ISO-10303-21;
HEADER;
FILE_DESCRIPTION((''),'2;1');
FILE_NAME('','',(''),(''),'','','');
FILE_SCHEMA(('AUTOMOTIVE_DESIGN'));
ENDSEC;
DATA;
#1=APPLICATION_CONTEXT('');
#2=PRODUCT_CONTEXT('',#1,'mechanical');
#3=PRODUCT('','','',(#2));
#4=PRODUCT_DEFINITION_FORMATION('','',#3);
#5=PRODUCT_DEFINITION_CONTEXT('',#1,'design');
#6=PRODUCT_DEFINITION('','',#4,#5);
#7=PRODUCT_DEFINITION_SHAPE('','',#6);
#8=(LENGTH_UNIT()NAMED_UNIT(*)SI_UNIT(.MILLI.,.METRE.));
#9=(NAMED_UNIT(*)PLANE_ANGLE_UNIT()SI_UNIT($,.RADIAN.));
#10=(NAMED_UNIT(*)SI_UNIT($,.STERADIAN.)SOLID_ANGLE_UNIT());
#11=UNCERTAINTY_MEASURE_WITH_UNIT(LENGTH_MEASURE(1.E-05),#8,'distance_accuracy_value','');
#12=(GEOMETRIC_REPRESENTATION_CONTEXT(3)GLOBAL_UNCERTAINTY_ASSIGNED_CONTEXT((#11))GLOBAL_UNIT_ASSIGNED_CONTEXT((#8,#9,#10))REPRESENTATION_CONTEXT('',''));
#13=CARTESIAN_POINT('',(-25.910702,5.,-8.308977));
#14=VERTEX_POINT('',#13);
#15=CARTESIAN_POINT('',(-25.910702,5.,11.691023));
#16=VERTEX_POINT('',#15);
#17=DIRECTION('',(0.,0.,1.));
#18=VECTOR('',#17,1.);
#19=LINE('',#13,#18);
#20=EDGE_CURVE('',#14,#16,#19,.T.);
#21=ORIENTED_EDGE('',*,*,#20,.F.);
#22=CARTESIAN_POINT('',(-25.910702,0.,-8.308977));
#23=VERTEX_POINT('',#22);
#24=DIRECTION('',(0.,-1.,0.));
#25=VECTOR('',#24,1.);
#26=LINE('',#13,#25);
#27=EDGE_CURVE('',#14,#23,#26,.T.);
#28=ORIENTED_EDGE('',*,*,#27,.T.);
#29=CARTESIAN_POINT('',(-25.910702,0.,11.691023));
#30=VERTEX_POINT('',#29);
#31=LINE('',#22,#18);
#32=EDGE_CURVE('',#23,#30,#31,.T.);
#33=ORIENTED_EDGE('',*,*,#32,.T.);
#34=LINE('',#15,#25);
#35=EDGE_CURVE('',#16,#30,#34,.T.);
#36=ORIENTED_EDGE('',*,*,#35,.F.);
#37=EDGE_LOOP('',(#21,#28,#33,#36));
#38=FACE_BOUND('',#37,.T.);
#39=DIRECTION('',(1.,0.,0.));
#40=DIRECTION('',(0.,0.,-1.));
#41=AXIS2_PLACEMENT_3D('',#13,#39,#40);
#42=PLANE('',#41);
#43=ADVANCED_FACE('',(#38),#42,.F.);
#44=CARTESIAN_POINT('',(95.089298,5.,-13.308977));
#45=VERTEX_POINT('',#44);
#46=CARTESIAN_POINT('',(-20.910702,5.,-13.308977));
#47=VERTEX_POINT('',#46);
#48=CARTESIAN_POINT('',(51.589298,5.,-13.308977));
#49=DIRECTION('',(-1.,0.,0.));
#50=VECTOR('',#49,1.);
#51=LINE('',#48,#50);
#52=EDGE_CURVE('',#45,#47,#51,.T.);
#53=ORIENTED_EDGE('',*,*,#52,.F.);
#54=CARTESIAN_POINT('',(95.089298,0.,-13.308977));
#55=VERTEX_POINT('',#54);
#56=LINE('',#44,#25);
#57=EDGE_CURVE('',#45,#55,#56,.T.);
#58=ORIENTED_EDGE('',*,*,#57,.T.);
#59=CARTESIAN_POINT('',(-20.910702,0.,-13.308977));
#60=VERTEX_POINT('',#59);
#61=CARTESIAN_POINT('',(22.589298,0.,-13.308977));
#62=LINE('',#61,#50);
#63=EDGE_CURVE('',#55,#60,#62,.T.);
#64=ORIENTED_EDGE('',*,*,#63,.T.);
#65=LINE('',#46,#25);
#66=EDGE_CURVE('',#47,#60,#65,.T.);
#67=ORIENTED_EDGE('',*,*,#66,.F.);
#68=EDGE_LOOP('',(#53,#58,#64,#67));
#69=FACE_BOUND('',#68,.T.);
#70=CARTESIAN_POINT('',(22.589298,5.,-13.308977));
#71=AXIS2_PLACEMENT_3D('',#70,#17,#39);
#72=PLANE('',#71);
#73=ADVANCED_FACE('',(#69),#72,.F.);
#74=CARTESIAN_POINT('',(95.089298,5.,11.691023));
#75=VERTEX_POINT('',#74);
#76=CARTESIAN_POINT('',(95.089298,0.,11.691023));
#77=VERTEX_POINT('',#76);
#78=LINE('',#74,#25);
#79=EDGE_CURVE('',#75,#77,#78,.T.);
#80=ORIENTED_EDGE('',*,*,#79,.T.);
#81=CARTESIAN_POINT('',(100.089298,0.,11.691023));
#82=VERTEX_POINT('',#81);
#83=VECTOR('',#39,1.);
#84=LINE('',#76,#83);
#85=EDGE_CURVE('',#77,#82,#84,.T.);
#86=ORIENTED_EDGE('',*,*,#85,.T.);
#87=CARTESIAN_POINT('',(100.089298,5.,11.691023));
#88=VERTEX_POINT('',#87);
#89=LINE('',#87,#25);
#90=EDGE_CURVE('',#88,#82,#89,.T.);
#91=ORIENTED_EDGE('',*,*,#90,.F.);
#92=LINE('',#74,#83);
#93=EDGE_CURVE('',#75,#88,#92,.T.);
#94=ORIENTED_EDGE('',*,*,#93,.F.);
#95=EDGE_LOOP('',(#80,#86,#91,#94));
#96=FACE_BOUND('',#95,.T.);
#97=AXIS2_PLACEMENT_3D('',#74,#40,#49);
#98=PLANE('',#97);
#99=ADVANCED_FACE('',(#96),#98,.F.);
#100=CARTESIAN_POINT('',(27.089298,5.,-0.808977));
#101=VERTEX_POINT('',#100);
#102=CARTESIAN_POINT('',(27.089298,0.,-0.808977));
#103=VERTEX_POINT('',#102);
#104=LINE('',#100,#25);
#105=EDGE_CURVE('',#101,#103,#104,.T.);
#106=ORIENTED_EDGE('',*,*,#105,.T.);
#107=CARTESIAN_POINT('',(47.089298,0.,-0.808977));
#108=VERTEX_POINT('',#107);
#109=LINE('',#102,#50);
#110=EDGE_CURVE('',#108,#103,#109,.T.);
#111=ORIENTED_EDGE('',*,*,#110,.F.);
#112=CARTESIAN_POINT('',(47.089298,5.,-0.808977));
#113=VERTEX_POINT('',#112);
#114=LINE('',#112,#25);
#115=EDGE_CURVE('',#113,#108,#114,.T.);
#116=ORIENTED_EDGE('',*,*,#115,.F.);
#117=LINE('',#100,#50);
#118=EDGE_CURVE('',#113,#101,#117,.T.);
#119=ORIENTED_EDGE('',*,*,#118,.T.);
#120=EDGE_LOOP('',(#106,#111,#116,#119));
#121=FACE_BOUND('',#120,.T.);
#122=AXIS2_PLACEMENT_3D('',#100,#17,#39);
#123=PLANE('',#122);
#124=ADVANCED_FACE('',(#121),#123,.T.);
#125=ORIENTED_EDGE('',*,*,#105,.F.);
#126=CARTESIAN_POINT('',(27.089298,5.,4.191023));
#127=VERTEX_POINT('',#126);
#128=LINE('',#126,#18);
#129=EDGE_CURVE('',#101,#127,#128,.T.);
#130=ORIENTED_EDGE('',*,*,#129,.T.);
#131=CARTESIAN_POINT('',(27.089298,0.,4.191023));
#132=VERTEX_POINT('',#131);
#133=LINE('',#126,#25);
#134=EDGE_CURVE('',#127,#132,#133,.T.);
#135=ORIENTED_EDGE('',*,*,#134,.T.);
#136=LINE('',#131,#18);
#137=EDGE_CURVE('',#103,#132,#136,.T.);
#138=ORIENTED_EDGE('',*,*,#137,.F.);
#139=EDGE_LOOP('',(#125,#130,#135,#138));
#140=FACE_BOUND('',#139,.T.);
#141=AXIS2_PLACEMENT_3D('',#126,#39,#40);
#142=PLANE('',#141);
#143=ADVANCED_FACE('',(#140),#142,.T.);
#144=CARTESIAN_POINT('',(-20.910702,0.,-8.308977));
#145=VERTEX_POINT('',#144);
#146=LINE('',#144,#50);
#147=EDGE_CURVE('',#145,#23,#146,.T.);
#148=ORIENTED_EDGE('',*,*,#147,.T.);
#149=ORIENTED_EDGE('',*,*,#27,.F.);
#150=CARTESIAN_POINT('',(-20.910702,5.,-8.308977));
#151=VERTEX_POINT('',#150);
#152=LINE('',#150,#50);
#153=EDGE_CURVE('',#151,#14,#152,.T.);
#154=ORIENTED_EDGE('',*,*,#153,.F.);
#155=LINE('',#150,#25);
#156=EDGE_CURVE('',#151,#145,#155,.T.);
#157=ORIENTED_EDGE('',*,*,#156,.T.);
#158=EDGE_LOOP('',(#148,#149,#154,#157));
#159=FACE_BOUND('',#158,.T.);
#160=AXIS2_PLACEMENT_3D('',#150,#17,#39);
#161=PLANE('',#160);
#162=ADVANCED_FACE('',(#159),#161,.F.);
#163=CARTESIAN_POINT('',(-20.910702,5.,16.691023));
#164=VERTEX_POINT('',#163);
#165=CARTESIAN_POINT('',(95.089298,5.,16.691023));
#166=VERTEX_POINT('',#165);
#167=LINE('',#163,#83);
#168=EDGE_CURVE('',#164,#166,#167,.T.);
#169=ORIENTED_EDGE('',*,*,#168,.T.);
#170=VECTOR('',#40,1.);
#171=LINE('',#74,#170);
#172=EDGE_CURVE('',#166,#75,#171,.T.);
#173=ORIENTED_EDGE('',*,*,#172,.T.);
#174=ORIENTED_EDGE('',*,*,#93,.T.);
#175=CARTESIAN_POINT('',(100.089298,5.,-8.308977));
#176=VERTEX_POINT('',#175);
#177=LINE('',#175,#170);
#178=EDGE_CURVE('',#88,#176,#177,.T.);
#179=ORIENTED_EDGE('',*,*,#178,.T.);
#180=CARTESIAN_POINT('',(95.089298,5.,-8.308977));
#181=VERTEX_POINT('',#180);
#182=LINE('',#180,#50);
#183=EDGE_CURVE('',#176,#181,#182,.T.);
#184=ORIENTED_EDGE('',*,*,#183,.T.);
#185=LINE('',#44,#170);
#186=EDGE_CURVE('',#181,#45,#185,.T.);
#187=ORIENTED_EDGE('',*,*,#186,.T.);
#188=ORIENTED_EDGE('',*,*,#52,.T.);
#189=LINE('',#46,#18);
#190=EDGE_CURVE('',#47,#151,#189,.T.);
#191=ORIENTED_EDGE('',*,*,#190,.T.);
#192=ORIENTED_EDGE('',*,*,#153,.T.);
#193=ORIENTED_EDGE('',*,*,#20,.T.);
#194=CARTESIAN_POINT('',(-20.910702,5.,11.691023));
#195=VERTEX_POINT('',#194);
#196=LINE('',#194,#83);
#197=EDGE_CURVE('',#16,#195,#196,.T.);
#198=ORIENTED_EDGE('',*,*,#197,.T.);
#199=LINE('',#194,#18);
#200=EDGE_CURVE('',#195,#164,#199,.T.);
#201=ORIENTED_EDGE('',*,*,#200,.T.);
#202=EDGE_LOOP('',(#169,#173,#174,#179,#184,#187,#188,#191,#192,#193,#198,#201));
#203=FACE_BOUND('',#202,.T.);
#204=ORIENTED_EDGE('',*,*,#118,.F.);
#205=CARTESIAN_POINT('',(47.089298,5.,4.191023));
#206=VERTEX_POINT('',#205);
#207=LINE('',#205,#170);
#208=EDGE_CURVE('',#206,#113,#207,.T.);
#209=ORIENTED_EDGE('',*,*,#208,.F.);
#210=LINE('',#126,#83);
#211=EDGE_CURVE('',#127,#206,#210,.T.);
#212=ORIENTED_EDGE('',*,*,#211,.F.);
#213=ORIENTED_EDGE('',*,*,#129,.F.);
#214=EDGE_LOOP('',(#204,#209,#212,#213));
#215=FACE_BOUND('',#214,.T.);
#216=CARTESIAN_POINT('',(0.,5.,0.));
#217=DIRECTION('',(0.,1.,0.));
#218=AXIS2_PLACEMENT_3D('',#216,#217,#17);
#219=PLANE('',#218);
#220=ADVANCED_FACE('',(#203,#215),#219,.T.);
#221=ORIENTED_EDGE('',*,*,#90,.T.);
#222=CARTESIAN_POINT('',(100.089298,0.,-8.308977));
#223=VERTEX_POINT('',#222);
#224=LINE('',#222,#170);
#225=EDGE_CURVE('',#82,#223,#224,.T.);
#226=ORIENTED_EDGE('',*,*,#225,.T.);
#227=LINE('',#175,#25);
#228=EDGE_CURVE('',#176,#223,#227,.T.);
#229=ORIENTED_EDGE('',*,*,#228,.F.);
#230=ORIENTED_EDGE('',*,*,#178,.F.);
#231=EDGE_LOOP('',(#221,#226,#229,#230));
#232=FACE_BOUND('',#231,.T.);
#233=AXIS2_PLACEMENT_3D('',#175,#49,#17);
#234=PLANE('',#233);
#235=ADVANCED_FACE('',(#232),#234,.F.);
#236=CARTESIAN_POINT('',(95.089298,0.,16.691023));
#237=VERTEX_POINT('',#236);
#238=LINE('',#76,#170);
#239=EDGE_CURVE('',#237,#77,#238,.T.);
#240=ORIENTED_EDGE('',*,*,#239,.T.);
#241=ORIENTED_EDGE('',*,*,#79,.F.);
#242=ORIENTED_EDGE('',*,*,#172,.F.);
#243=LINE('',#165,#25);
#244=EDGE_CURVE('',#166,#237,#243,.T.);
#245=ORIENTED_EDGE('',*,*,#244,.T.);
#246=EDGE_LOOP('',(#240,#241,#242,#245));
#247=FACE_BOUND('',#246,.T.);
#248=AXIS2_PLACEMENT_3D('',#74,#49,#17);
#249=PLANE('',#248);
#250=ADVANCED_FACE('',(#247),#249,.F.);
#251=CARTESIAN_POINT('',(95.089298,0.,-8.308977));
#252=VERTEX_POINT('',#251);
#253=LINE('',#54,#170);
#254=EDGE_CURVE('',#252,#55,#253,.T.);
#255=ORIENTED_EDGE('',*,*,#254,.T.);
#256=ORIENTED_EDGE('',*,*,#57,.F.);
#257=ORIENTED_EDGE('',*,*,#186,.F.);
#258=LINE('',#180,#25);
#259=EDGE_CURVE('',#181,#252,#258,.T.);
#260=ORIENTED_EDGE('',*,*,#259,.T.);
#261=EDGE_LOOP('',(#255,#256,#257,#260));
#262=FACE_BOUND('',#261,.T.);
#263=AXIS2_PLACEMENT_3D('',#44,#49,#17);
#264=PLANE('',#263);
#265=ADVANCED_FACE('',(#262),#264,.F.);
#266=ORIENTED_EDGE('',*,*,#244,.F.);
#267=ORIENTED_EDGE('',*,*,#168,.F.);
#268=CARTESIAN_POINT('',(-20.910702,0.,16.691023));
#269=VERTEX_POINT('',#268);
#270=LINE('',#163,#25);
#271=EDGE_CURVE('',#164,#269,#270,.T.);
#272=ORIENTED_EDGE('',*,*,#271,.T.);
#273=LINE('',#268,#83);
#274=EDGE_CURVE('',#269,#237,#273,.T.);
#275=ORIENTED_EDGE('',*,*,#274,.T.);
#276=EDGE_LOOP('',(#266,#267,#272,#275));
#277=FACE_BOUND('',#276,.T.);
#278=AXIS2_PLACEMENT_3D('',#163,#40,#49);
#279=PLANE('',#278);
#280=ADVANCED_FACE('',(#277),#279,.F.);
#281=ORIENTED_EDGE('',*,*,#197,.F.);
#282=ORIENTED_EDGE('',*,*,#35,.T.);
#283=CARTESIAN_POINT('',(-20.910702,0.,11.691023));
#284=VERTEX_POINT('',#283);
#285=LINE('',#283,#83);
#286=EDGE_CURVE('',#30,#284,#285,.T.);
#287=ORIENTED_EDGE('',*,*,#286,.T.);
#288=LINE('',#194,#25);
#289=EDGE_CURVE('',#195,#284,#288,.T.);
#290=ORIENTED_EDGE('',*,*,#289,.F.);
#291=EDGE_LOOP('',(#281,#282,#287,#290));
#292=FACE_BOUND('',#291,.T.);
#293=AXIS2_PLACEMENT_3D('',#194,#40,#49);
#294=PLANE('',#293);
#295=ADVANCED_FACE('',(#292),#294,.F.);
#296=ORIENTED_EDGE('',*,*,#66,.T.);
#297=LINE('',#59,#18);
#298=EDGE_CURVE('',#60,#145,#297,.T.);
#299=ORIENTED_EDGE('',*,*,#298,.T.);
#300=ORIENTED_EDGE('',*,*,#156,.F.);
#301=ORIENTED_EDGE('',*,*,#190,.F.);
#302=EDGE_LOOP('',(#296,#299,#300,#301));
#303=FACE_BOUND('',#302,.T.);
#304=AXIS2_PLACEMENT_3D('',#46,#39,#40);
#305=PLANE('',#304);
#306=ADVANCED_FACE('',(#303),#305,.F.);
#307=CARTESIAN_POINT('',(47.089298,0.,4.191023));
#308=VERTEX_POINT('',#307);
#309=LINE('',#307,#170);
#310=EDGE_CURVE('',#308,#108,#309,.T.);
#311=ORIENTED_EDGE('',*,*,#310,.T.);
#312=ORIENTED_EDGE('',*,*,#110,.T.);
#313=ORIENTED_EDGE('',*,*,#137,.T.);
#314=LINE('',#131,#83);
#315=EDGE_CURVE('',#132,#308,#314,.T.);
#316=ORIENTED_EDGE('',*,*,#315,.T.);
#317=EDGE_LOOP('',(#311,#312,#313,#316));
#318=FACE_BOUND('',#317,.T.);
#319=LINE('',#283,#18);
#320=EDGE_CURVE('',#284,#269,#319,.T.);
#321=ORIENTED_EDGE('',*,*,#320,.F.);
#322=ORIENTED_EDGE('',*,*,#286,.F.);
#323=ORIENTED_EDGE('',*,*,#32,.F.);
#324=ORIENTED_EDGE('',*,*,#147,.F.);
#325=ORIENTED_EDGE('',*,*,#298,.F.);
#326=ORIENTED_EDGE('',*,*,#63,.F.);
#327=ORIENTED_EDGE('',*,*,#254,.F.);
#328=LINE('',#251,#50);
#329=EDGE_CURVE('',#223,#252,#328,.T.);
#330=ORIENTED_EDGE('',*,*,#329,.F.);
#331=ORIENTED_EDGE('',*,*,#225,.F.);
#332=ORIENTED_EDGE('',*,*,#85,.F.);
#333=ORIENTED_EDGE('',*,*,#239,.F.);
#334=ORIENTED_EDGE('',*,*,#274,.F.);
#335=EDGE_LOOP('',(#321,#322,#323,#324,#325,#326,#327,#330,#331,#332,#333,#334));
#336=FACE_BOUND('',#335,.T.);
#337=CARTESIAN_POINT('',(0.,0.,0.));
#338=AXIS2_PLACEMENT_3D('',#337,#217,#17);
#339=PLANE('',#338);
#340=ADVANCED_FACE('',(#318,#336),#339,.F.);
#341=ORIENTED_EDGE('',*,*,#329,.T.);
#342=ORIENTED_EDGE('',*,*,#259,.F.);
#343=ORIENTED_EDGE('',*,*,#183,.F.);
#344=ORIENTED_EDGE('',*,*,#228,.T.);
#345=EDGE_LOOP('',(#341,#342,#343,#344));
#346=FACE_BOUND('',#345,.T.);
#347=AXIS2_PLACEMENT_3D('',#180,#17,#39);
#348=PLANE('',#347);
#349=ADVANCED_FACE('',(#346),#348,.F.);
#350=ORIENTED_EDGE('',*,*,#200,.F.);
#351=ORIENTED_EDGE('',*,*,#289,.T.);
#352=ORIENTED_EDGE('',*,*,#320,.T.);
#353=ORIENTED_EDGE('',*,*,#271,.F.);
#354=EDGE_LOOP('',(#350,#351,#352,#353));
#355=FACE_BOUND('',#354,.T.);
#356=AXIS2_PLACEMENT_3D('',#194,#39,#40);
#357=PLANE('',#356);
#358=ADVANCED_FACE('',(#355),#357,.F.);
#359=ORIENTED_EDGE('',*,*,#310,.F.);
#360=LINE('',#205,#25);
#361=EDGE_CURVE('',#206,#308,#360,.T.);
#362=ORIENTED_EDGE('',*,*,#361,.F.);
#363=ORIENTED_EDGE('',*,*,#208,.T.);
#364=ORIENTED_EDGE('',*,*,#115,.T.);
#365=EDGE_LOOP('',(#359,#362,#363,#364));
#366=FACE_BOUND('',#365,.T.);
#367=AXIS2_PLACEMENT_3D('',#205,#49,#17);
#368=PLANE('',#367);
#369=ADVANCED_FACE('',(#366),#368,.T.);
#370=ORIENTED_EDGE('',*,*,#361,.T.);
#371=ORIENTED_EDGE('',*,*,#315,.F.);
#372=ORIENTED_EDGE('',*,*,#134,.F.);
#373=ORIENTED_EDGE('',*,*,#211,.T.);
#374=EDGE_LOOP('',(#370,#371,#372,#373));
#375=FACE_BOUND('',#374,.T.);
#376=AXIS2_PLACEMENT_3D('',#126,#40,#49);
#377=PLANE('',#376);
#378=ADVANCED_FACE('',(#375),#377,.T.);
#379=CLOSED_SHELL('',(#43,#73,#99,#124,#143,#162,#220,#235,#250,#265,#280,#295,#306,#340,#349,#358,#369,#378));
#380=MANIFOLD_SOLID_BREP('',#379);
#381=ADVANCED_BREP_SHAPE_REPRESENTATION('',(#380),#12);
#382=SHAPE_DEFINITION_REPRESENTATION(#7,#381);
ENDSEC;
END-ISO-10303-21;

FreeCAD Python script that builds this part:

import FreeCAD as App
import Part
import Sketcher

V = App.Vector

doc = App.newDocument("Part")
body = doc.addObject("PartDesign::Body", "Body")

sketch1 = body.newObject("Sketcher::SketchObject", "Sketch")
sketch1.AttachmentSupport = (doc.getObject("XZ_Plane"), [""])
sketch1.MapMode = "FlatFace"
sketch1.addGeometry(Part.LineSegment(V(95, -13, 0), V(-21, -13, 0)), False)
sketch1.addGeometry(Part.LineSegment(V(-21, -13, 0), V(-21, -8, 0)), False)
sketch1.addGeometry(Part.LineSegment(V(-21, -8, 0), V(-26, -8, 0)), False)
sketch1.addGeometry(Part.LineSegment(V(-26, -8, 0), V(-26, 12, 0)), False)
sketch1.addGeometry(Part.LineSegment(V(-26, 12, 0), V(-21, 12, 0)), False)
sketch1.addGeometry(Part.LineSegment(V(-21, 12, 0), V(-21, 17, 0)), False)
sketch1.addGeometry(Part.LineSegment(V(-21, 17, 0), V(95, 17, 0)), False)
sketch1.addGeometry(Part.LineSegment(V(95, 17, 0), V(95, 12, 0)), False)
sketch1.addGeometry(Part.LineSegment(V(95, 12, 0), V(100, 12, 0)), False)
sketch1.addGeometry(Part.LineSegment(V(100, 12, 0), V(100, -8, 0)), False)
sketch1.addGeometry(Part.LineSegment(V(100, -8, 0), V(95, -8, 0)), False)
sketch1.addGeometry(Part.LineSegment(V(95, -8, 0), V(95, -13, 0)), False)
sketch1.addGeometry(Part.LineSegment(V(27, 4, 0), V(27, -1, 0)), False)
sketch1.addGeometry(Part.LineSegment(V(27, -1, 0), V(47, -1, 0)), False)
sketch1.addGeometry(Part.LineSegment(V(47, -1, 0), V(47, 4, 0)), False)
sketch1.addGeometry(Part.LineSegment(V(47, 4, 0), V(27, 4, 0)), False)
sketch1.addConstraint(Sketcher.Constraint("Coincident", 0, 2, 1, 1))
sketch1.addConstraint(Sketcher.Constraint("Coincident", 1, 2, 2, 1))
sketch1.addConstraint(Sketcher.Constraint("Coincident", 2, 2, 3, 1))
sketch1.addConstraint(Sketcher.Constraint("Coincident", 3, 2, 4, 1))
sketch1.addConstraint(Sketcher.Constraint("Coincident", 4, 2, 5, 1))
sketch1.addConstraint(Sketcher.Constraint("Coincident", 5, 2, 6, 1))
sketch1.addConstraint(Sketcher.Constraint("Coincident", 6, 2, 7, 1))
sketch1.addConstraint(Sketcher.Constraint("Coincident", 7, 2, 8, 1))
sketch1.addConstraint(Sketcher.Constraint("Coincident", 8, 2, 9, 1))
sketch1.addConstraint(Sketcher.Constraint("Coincident", 9, 2, 10, 1))
sketch1.addConstraint(Sketcher.Constraint("Coincident", 10, 2, 11, 1))
sketch1.addConstraint(Sketcher.Constraint("Coincident", 11, 2, 0, 1))
sketch1.addConstraint(Sketcher.Constraint("Coincident", 12, 2, 13, 1))
sketch1.addConstraint(Sketcher.Constraint("Coincident", 13, 2, 14, 1))
sketch1.addConstraint(Sketcher.Constraint("Coincident", 14, 2, 15, 1))
sketch1.addConstraint(Sketcher.Constraint("Coincident", 15, 2, 12, 1))
sketch1.addConstraint(Sketcher.Constraint("Horizontal", 0))
sketch1.addConstraint(Sketcher.Constraint("Vertical", 1))
sketch1.addConstraint(Sketcher.Constraint("Horizontal", 2))
sketch1.addConstraint(Sketcher.Constraint("Vertical", 3))
sketch1.addConstraint(Sketcher.Constraint("Horizontal", 4))
sketch1.addConstraint(Sketcher.Constraint("Vertical", 5))
sketch1.addConstraint(Sketcher.Constraint("Horizontal", 6))
sketch1.addConstraint(Sketcher.Constraint("Vertical", 7))
sketch1.addConstraint(Sketcher.Constraint("Horizontal", 8))
sketch1.addConstraint(Sketcher.Constraint("Vertical", 9))
sketch1.addConstraint(Sketcher.Constraint("Horizontal", 10))
sketch1.addConstraint(Sketcher.Constraint("Vertical", 11))
sketch1.addConstraint(Sketcher.Constraint("Vertical", 12))
sketch1.addConstraint(Sketcher.Constraint("Horizontal", 13))
sketch1.addConstraint(Sketcher.Constraint("Vertical", 14))
sketch1.addConstraint(Sketcher.Constraint("Horizontal", 15))
sketch1.addConstraint(Sketcher.Constraint("Horizontal", 4, 2, 7, 2))
sketch1.addConstraint(Sketcher.Constraint("Horizontal", 2, 2, 9, 2))
sketch1.addConstraint(Sketcher.Constraint("Vertical", 1, 2, 4, 2))
sketch1.addConstraint(Sketcher.Constraint("Vertical", 7, 2, 10, 2))
sketch1.addConstraint(Sketcher.Constraint("Equal", 4, 8))
sketch1.addConstraint(Sketcher.Constraint("Equal", 10, 1))
sketch1.addConstraint(Sketcher.Constraint("Equal", 15, 3))
sketch1.addConstraint(Sketcher.Constraint("Equal", 1, 5))
sketch1.addConstraint(Sketcher.Constraint("Equal", 11, 12))
sketch1.addConstraint(Sketcher.Constraint("DistanceX", 0, 2, 0, 1, 116.0))
sketch1.addConstraint(Sketcher.Constraint("DistanceX", 2, 2, 2, 1, 5.0))
sketch1.addConstraint(Sketcher.Constraint("DistanceX", 13, 1, 13, 2, 20.0))
sketch1.addConstraint(Sketcher.Constraint("DistanceX", 1, 2, 12, 2, 48.0))
sketch1.addConstraint(Sketcher.Constraint("DistanceY", 1, 2, 12, 2, 7.5))
sketch1.addConstraint(Sketcher.Constraint("DistanceX", 0, 2, -1, 1, 20.910702))
sketch1.addConstraint(Sketcher.Constraint("DistanceY", 0, 2, -1, 1, 13.308977))
pad1 = body.newObject("PartDesign::Pad", "Pad")
pad1.Profile = sketch1
pad1.Length = 5
pad1.Reversed = True

doc.recompute()
